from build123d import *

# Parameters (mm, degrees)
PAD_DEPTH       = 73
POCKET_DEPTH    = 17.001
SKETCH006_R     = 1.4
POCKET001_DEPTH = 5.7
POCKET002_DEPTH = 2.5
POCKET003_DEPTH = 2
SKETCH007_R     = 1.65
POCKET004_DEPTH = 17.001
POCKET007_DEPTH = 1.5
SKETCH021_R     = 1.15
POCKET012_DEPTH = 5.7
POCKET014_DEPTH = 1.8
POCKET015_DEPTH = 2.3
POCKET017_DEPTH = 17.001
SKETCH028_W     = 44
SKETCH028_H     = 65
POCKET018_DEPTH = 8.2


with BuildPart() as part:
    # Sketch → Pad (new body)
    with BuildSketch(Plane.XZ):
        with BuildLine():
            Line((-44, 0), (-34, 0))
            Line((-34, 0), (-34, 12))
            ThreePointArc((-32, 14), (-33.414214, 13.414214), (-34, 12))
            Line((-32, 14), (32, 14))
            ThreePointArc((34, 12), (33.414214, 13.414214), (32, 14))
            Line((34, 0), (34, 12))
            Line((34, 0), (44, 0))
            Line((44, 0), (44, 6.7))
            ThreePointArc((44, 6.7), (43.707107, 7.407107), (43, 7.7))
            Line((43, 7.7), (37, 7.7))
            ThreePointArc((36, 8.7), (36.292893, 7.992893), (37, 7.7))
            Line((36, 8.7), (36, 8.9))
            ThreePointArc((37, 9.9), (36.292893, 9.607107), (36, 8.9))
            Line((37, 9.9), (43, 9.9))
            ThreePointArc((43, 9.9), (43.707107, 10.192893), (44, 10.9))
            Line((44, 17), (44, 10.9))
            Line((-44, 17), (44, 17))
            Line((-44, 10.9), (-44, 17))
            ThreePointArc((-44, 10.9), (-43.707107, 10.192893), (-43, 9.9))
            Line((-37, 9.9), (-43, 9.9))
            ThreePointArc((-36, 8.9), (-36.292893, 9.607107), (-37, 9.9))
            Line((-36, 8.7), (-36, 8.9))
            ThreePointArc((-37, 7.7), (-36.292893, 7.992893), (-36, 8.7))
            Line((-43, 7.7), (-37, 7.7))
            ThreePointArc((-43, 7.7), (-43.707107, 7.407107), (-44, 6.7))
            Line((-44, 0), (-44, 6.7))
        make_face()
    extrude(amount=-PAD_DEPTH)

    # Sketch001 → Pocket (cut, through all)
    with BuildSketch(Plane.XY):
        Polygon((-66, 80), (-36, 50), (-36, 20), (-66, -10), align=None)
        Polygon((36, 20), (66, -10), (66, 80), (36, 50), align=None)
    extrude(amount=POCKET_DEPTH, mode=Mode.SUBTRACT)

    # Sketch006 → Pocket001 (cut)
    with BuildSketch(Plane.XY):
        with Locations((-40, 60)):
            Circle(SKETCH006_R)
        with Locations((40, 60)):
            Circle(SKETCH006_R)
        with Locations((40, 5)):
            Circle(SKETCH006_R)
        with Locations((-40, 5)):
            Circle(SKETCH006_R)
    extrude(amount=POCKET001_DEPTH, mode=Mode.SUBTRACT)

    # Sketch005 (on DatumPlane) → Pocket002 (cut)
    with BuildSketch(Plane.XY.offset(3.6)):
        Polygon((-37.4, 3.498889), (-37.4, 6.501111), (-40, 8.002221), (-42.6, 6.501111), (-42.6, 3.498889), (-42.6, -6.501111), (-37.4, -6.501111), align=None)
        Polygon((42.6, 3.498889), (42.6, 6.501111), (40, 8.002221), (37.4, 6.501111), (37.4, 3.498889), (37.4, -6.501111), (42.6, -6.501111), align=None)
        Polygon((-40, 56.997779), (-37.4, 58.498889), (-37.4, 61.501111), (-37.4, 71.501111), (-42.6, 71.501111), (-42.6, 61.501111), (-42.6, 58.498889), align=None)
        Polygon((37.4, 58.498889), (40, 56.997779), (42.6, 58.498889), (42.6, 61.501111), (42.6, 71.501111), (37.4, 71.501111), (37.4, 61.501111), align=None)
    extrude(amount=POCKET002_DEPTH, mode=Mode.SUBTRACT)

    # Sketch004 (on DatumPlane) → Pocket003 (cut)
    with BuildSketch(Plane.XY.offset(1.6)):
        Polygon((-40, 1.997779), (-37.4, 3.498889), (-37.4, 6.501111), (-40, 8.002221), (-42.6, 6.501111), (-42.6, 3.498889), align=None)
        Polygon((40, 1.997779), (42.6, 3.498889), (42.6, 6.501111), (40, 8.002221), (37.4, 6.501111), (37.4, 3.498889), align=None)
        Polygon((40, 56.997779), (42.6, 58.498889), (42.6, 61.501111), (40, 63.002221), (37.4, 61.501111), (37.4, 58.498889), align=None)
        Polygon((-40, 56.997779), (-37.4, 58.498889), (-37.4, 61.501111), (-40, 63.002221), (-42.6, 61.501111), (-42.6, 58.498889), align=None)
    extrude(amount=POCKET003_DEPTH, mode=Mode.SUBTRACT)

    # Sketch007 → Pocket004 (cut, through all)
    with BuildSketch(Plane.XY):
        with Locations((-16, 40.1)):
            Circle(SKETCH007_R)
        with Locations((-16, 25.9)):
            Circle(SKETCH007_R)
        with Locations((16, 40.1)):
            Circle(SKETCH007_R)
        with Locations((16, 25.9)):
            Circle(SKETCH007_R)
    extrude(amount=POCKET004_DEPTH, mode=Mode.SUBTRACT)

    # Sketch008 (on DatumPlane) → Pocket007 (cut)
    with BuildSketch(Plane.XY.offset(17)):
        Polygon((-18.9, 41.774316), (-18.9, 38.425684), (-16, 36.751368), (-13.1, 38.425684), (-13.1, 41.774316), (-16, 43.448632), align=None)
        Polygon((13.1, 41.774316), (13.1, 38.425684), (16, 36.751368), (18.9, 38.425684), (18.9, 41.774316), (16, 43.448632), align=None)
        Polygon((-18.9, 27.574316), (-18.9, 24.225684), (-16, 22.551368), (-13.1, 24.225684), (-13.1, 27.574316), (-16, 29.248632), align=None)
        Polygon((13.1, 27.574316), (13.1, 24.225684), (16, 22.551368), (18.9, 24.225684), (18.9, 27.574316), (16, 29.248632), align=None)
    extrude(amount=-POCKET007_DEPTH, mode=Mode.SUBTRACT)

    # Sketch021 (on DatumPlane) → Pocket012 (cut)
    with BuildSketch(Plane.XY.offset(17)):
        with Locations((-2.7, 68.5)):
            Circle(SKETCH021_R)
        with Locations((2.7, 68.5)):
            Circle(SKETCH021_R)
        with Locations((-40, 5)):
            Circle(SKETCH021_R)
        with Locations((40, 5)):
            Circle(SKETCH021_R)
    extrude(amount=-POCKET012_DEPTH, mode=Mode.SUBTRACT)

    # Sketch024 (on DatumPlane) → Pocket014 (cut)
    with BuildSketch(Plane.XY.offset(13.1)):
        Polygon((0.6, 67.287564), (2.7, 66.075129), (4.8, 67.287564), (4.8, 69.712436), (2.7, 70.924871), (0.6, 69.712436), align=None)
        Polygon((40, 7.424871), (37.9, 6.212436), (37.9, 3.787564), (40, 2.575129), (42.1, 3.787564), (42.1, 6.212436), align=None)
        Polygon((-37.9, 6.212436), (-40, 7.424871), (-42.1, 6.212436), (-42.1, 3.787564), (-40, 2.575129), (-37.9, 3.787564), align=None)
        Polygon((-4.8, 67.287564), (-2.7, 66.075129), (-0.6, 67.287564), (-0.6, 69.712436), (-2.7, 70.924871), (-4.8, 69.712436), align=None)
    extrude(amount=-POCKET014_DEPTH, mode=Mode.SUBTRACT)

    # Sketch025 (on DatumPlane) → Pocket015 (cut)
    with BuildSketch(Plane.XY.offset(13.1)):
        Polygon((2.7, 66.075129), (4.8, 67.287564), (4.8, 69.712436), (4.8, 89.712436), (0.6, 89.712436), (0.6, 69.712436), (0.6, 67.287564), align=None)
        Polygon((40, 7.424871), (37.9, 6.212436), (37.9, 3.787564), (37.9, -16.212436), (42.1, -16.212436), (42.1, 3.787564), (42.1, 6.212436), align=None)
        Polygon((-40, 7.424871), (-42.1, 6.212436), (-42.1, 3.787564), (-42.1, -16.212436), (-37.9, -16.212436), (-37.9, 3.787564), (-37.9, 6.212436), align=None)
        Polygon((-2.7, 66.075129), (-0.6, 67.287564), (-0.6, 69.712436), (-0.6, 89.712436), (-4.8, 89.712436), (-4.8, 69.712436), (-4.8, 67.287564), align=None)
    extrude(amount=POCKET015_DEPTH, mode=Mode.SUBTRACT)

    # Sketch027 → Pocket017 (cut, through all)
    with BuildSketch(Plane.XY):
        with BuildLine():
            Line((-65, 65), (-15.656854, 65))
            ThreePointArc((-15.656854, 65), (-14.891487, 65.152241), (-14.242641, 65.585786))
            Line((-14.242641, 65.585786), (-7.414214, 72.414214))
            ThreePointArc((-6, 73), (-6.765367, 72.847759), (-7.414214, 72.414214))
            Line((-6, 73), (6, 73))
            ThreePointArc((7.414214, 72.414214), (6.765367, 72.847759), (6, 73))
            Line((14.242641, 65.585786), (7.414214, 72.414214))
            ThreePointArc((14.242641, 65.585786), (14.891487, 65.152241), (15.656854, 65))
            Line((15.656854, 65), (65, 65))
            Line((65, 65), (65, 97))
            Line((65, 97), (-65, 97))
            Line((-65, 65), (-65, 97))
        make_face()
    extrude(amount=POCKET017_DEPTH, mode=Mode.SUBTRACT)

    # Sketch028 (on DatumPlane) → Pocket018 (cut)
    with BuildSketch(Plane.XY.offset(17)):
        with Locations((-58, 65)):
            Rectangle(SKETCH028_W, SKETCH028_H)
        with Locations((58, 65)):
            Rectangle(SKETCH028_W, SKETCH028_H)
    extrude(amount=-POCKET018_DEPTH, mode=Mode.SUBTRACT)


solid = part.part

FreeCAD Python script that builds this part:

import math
import FreeCAD as App
import Part
import Sketcher

V = App.Vector
Q = App.Units.Quantity


def add_polygon(sketch, points):
    """Adds a closed chain of lines whose ends are joined by coincident constraints."""
    first, n = sketch.GeometryCount, len(points)
    for a, b in zip(points, points[1:] + points[:1]):
        sketch.addGeometry(Part.LineSegment(App.Vector(*a, 0), App.Vector(*b, 0)), False)
    for i in range(n):
        sketch.addConstraint(Sketcher.Constraint("Coincident", first + i, 2, first + (i + 1) % n, 1))

doc = App.newDocument("Part")
params = doc.addObject("Spreadsheet::Sheet", "Params")
for row, (alias, value) in enumerate([
    ("sketch1_radius", "1.999999 mm"),
    ("sketch1_radius2", "0.999999 mm"),
    ("sketch1_width", "10 mm"),
    ("sketch1_width2", "64 mm"),
    ("sketch1_width3", "6 mm"),
    ("pad1_length", "73 mm"),
    ("sketch2_height", "90 mm"),
    ("sketch2_height2", "30 mm"),
    ("sketch3_diameter", "2.8 mm"),
    ("pocket2_length", "5.7 mm"),
    ("sketch4_width", "5.2 mm"),
    ("pocket3_length", "2.5 mm"),
    ("pocket4_length", "2 mm"),
    ("sketch6_diameter", "3.3 mm"),
    ("pocket6_length", "1.5 mm"),
    ("sketch8_diameter", "2.3 mm"),
    ("pocket7_length", "5.7 mm"),
    ("pocket8_length", "1.8 mm"),
    ("sketch10_width", "4.2 mm"),
    ("pocket9_length", "2.3 mm"),
    ("sketch11_radius", "2 mm"),
    ("sketch11_width", "12 mm"),
    ("sketch11_width2", "130 mm"),
    ("sketch11_height", "32 mm"),
    ("sketch12_width", "44 mm"),
    ("sketch12_height", "65 mm"),
    ("pocket11_length", "8.2 mm"),
], start=1):
    params.set(f"A{row}", alias)
    params.set(f"B{row}", "=" + value)
    params.setAlias(f"B{row}", alias)

body = doc.addObject("PartDesign::Body", "Body")

# Sketch on XZ plane
sketch1 = body.newObject("Sketcher::SketchObject", "Sketch")
sketch1.AttachmentSupport = (doc.getObject("XZ_Plane"), [""])
sketch1.MapMode = "FlatFace"
sketch1.addGeometry([
    Part.LineSegment(V(-44, 0, 0), V(-34, 0, 0)),  # 0
    Part.LineSegment(V(-34, 0, 0), V(-34, 12, 0)),  # 1
    Part.ArcOfCircle(Part.Circle(V(-32, 12, 0), V(0, 0, 1), 2), math.radians(90), math.radians(180)),  # 2
    Part.LineSegment(V(-32, 14, 0), V(32, 14, 0)),  # 3
    Part.ArcOfCircle(Part.Circle(V(32, 12, 0), V(0, 0, 1), 2), math.radians(0), math.radians(90)),  # 4
    Part.LineSegment(V(34, 12, 0), V(34, 0, 0)),  # 5
    Part.LineSegment(V(34, 0, 0), V(44, 0, 0)),  # 6
    Part.LineSegment(V(44, 0, 0), V(44, 6.7, 0)),  # 7
    Part.ArcOfCircle(Part.Circle(V(43, 6.7, 0), V(0, 0, 1), 1), math.radians(0), math.radians(90)),  # 8
    Part.LineSegment(V(43, 7.7, 0), V(37, 7.7, 0)),  # 9
    Part.ArcOfCircle(Part.Circle(V(37, 8.7, 0), V(0, 0, 1), 1), math.radians(180), math.radians(270)),  # 10
    Part.LineSegment(V(36, 8.7, 0), V(36, 8.9, 0)),  # 11
    Part.ArcOfCircle(Part.Circle(V(37, 8.9, 0), V(0, 0, 1), 1), math.radians(90), math.radians(180)),  # 12
    Part.LineSegment(V(37, 9.9, 0), V(43, 9.9, 0)),  # 13
    Part.ArcOfCircle(Part.Circle(V(43, 10.9, 0), V(0, 0, 1), 1), math.radians(-90), math.radians(0)),  # 14
    Part.LineSegment(V(44, 10.9, 0), V(44, 17, 0)),  # 15
    Part.LineSegment(V(44, 17, 0), V(-44, 17, 0)),  # 16
    Part.LineSegment(V(-44, 17, 0), V(-44, 10.9, 0)),  # 17
    Part.ArcOfCircle(Part.Circle(V(-43, 10.9, 0), V(0, 0, 1), 1), math.radians(180), math.radians(270)),  # 18
    Part.LineSegment(V(-43, 9.9, 0), V(-37, 9.9, 0)),  # 19
    Part.ArcOfCircle(Part.Circle(V(-37, 8.9, 0), V(0, 0, 1), 1), math.radians(0), math.radians(90)),  # 20
    Part.LineSegment(V(-36, 8.9, 0), V(-36, 8.7, 0)),  # 21
    Part.ArcOfCircle(Part.Circle(V(-37, 8.7, 0), V(0, 0, 1), 1), math.radians(-90), math.radians(0)),  # 22
    Part.LineSegment(V(-37, 7.7, 0), V(-43, 7.7, 0)),  # 23
    Part.ArcOfCircle(Part.Circle(V(-43, 6.7, 0), V(0, 0, 1), 1), math.radians(90), math.radians(180)),  # 24
    Part.LineSegment(V(-44, 6.7, 0), V(-44, 0, 0)),  # 25
], False)
sketch1.addConstraint([
    Sketcher.Constraint("Coincident", 0, 2, 1, 1),
    Sketcher.Constraint("Tangent", 1, 2, 2, 2),
    Sketcher.Constraint("Tangent", 2, 1, 3, 1),
    Sketcher.Constraint("Tangent", 3, 2, 4, 2),
    Sketcher.Constraint("Tangent", 4, 1, 5, 1),
    Sketcher.Constraint("Coincident", 5, 2, 6, 1),
    Sketcher.Constraint("Coincident", 6, 2, 7, 1),
    Sketcher.Constraint("Tangent", 7, 2, 8, 1),
    Sketcher.Constraint("Tangent", 8, 2, 9, 1),
    Sketcher.Constraint("Tangent", 9, 2, 10, 2),
    Sketcher.Constraint("Tangent", 10, 1, 11, 1),
    Sketcher.Constraint("Tangent", 11, 2, 12, 2),
    Sketcher.Constraint("Tangent", 12, 1, 13, 1),
    Sketcher.Constraint("Tangent", 13, 2, 14, 1),
    Sketcher.Constraint("Tangent", 14, 2, 15, 1),
    Sketcher.Constraint("Coincident", 15, 2, 16, 1),
    Sketcher.Constraint("Coincident", 16, 2, 17, 1),
    Sketcher.Constraint("Tangent", 17, 2, 18, 1),
    Sketcher.Constraint("Tangent", 18, 2, 19, 1),
    Sketcher.Constraint("Tangent", 19, 2, 20, 2),
    Sketcher.Constraint("Tangent", 20, 1, 21, 1),
    Sketcher.Constraint("Tangent", 21, 2, 22, 2),
    Sketcher.Constraint("Tangent", 22, 1, 23, 1),
    Sketcher.Constraint("Tangent", 23, 2, 24, 1),
    Sketcher.Constraint("Tangent", 24, 2, 25, 1),
    Sketcher.Constraint("Coincident", 25, 2, 0, 1),
    Sketcher.Constraint("Horizontal", 0),
    Sketcher.Constraint("Vertical", 1),
    Sketcher.Constraint("Horizontal", 3),
    Sketcher.Constraint("Vertical", 5),
    Sketcher.Constraint("Horizontal", 6),
    Sketcher.Constraint("Vertical", 7),
    Sketcher.Constraint("Horizontal", 9),
    Sketcher.Constraint("Vertical", 11),
    Sketcher.Constraint("Horizontal", 13),
    Sketcher.Constraint("Vertical", 15),
    Sketcher.Constraint("Horizontal", 16),
    Sketcher.Constraint("Vertical", 17),
    Sketcher.Constraint("Horizontal", 19),
    Sketcher.Constraint("Vertical", 21),
    Sketcher.Constraint("Horizontal", 23),
    Sketcher.Constraint("Vertical", 25),
    Sketcher.Constraint("Equal", 2, 4),
    Sketcher.Constraint("Equal", 8, 10),
    Sketcher.Constraint("Equal", 10, 12),
    Sketcher.Constraint("Equal", 12, 14),
    Sketcher.Constraint("Equal", 14, 18),
    Sketcher.Constraint("Equal", 18, 20),
    Sketcher.Constraint("Equal", 20, 22),
    Sketcher.Constraint("Equal", 22, 24),
    Sketcher.Constraint("Symmetric", 0, 2, 5, 2, -1, 1),
    Sketcher.Constraint("Symmetric", 14, 3, 18, 3, -2),
    Sketcher.Constraint("Symmetric", 10, 3, 22, 3, -2),
    Sketcher.Constraint("Symmetric", 6, 2, 25, 2, -2),
    Sketcher.Constraint("Vertical", 8, 3, 14, 3),
    Sketcher.Constraint("Radius", 2, Q("1.999999 mm")),
    Sketcher.Constraint("Radius", 8, Q("0.999999 mm")),
    Sketcher.Constraint("DistanceX", 0, 1, 0, 2, Q("10 mm")),
    Sketcher.Constraint("DistanceX", 3, 1, 3, 2, Q("64 mm")),
    Sketcher.Constraint("DistanceX", 9, 2, 9, 1, Q("6 mm")),
    Sketcher.Constraint("DistanceY", 1, 1, 1, 2, Q("12 mm")),
    Sketcher.Constraint("DistanceY", 7, 1, 7, 2, Q("6.7 mm")),
    Sketcher.Constraint("DistanceY", 11, 1, 11, 2, Q("0.2 mm")),
    Sketcher.Constraint("DistanceY", 15, 1, 15, 2, Q("6.1 mm")),
])
sketch1.setExpression("Constraints[55]", "Params.sketch1_radius")
sketch1.setExpression("Constraints[56]", "Params.sketch1_radius2")
sketch1.setExpression("Constraints[57]", "Params.sketch1_width")
sketch1.setExpression("Constraints[58]", "Params.sketch1_width2")
sketch1.setExpression("Constraints[59]", "Params.sketch1_width3")
pad1 = body.newObject("PartDesign::Pad", "Pad")
pad1.Profile = sketch1
pad1.setExpression("Length", "Params.pad1_length")
pad1.Reversed = True

# Sketch on XY plane
sketch2 = body.newObject("Sketcher::SketchObject", "Sketch001")
sketch2.AttachmentSupport = (doc.getObject("XY_Plane"), [""])
sketch2.MapMode = "FlatFace"
add_polygon(sketch2, [(-36, 50), (-66, 80), (-66, -10), (-36, 20)])  # lines 0-3
add_polygon(sketch2, [(36, 20), (66, -10), (66, 80), (36, 50)])  # lines 4-7
sketch2.addConstraint([
    Sketcher.Constraint("Vertical", 1),
    Sketcher.Constraint("Vertical", 3),
    Sketcher.Constraint("Vertical", 5),
    Sketcher.Constraint("Vertical", 7),
    Sketcher.Constraint("Symmetric", 1, 2, 4, 2, -2),
    Sketcher.Constraint("Symmetric", 3, 2, 6, 2, -2),
    Sketcher.Constraint("Perpendicular", 0, 2),
    Sketcher.Constraint("Perpendicular", 2, 4),
    Sketcher.Constraint("Perpendicular", 4, 6),
    Sketcher.Constraint("Horizontal", 0, 2, 5, 2),
    Sketcher.Constraint("DistanceY", 1, 2, 1, 1, Q("90 mm")),
    Sketcher.Constraint("DistanceY", 3, 1, 3, 2, Q("30 mm")),
    Sketcher.Constraint("DistanceX", 0, 2, -1, 1, Q("66 mm")),
    Sketcher.Constraint("DistanceY", -1, 1, 0, 2, Q("80 mm")),
])
sketch2.setExpression("Constraints[18]", "Params.sketch2_height")
sketch2.setExpression("Constraints[19]", "Params.sketch2_height2")
pocket1 = body.newObject("PartDesign::Pocket", "Pocket")
pocket1.Profile = sketch2
pocket1.Type = "ThroughAll"
pocket1.Reversed = True

# Sketch on XY plane
sketch3 = body.newObject("Sketcher::SketchObject", "Sketch002")
sketch3.AttachmentSupport = (doc.getObject("XY_Plane"), [""])
sketch3.MapMode = "FlatFace"
sketch3.addGeometry([
    Part.Circle(V(-40, 60, 0), V(0, 0, 1), 1.4),
    Part.Circle(V(40, 60, 0), V(0, 0, 1), 1.4),
    Part.Circle(V(40, 5, 0), V(0, 0, 1), 1.4),
    Part.Circle(V(-40, 5, 0), V(0, 0, 1), 1.4),
], False)
sketch3.addConstraint([
    Sketcher.Constraint("Equal", 0, 1),
    Sketcher.Constraint("Equal", 1, 2),
    Sketcher.Constraint("Equal", 2, 3),
    Sketcher.Constraint("Symmetric", 0, 3, 1, 3, -2),
    Sketcher.Constraint("Symmetric", 2, 3, 3, 3, -2),
    Sketcher.Constraint("Vertical", 1, 3, 2, 3),
    Sketcher.Constraint("Diameter", 0, Q("2.8 mm")),
    Sketcher.Constraint("DistanceX", 0, 3, -1, 1, Q("40 mm")),
    Sketcher.Constraint("DistanceY", -1, 1, 0, 3, Q("60 mm")),
    Sketcher.Constraint("DistanceY", -1, 1, 2, 3, Q("5 mm")),
])
sketch3.setExpression("Constraints[6]", "Params.sketch3_diameter")
pocket2 = body.newObject("PartDesign::Pocket", "Pocket001")
pocket2.Profile = sketch3
pocket2.setExpression("Length", "Params.pocket2_length")
pocket2.Reversed = True

# Sketch on XY plane
sketch4 = body.newObject("Sketcher::SketchObject", "Sketch003")
sketch4.AttachmentSupport = (doc.getObject("XY_Plane"), [""])
sketch4.MapMode = "FlatFace"
sketch4.AttachmentOffset = App.Placement(V(0, 0, 3.6), App.Rotation())
add_polygon(sketch4, [(-37.4, 6.5), (-40, 8), (-42.6, 6.5), (-42.6, -6.5), (-37.4, -6.5)])  # lines 0-4
add_polygon(sketch4, [(42.6, 6.5), (40, 8), (37.4, 6.5), (37.4, -6.5), (42.6, -6.5)])  # lines 5-9
add_polygon(sketch4, [(-40, 57), (-37.4, 58.5), (-37.4, 71.5), (-42.6, 71.5), (-42.6, 58.5)])  # lines 10-14
add_polygon(sketch4, [(37.4, 58.5), (40, 57), (42.6, 58.5), (42.6, 71.5), (37.4, 71.5)])  # lines 15-19
sketch4.addConstraint([
    Sketcher.Constraint("Vertical", 2),
    Sketcher.Constraint("Horizontal", 3),
    Sketcher.Constraint("Vertical", 4),
    Sketcher.Constraint("Vertical", 7),
    Sketcher.Constraint("Horizontal", 8),
    Sketcher.Constraint("Vertical", 9),
    Sketcher.Constraint("Vertical", 11),
    Sketcher.Constraint("Horizontal", 12),
    Sketcher.Constraint("Vertical", 13),
    Sketcher.Constraint("Vertical", 17),
    Sketcher.Constraint("Horizontal", 18),
    Sketcher.Constraint("Vertical", 19),
    Sketcher.Constraint("Symmetric", 3, 2, 6, 2, -1, 1),
    Sketcher.Constraint("Symmetric", 1, 2, 8, 2, -1, 1),
    Sketcher.Constraint("Symmetric", 0, 2, 5, 2, -2),
    Sketcher.Constraint("Symmetric", 14, 2, 15, 2, -2),
    Sketcher.Constraint("Symmetric", 13, 2, 16, 2, -2),
    Sketcher.Constraint("Symmetric", 11, 2, 18, 2, -2),
    Sketcher.Constraint("Parallel", 0, 5),
    Sketcher.Constraint("Parallel", 1, 6),
    Sketcher.Constraint("Parallel", 6, 10),
    Sketcher.Constraint("Parallel", 5, 14),
    Sketcher.Constraint("Parallel", 14, 15),
    Sketcher.Constraint("Parallel", 10, 16),
    Sketcher.Constraint("Horizontal", 1, 2, 4, 2),
    Sketcher.Constraint("Horizontal", 10, 2, 13, 2),
    Sketcher.Constraint("Vertical", 4, 2, 10, 2),
    Sketcher.Constraint("Vertical", 2, 2, 12, 2),
    Sketcher.Constraint("Equal", 9, 11),
    Sketcher.Constraint("Angle", 0, Q("150.000012 deg")),
    Sketcher.Constraint("DistanceX", 3, 1, 3, 2, Q("5.2 mm")),
    Sketcher.Constraint("DistanceX", 0, 2, -1, 1, Q("40 mm")),
    Sketcher.Constraint("DistanceY", 3, 2, 10, 2, Q("65 mm")),
    Sketcher.Constraint("DistanceY", 11, 1, 11, 2, Q("13.002222 mm")),
])
sketch4.setExpression("Constraints[50]", "Params.sketch4_width")
pocket3 = body.newObject("PartDesign::Pocket", "Pocket002")
pocket3.Profile = sketch4
pocket3.setExpression("Length", "Params.pocket3_length")
pocket3.Reversed = True

# Sketch on XY plane
sketch5 = body.newObject("Sketcher::SketchObject", "Sketch004")
sketch5.AttachmentSupport = (doc.getObject("XY_Plane"), [""])
sketch5.MapMode = "FlatFace"
sketch5.AttachmentOffset = App.Placement(V(0, 0, 1.6), App.Rotation())
add_polygon(sketch5, [(-40, 2), (-37.4, 3.5), (-37.4, 6.5), (-40, 8), (-42.6, 6.5), (-42.6, 3.5)])  # lines 0-5
add_polygon(sketch5, [(40, 2), (42.6, 3.5), (42.6, 6.5), (40, 8), (37.4, 6.5), (37.4, 3.5)])  # lines 6-11
add_polygon(sketch5, [(40, 57), (42.6, 58.5), (42.6, 61.5), (40, 63), (37.4, 61.5), (37.4, 58.5)])  # lines 12-17
add_polygon(sketch5, [(-40, 57), (-37.4, 58.5), (-37.4, 61.5), (-40, 63), (-42.6, 61.5), (-42.6, 58.5)])  # lines 18-23
sketch5.addConstraint([
    Sketcher.Constraint("Vertical", 1),
    Sketcher.Constraint("Vertical", 4),
    Sketcher.Constraint("Vertical", 7),
    Sketcher.Constraint("Vertical", 10),
    Sketcher.Constraint("Vertical", 13),
    Sketcher.Constraint("Vertical", 16),
    Sketcher.Constraint("Vertical", 19),
    Sketcher.Constraint("Vertical", 22),
    Sketcher.Constraint("Symmetric", 4, 2, 6, 2, -2),
    Sketcher.Constraint("Symmetric", 2, 2, 8, 2, -2),
    Sketcher.Constraint("Symmetric", 1, 2, 9, 2, -2),
    Sketcher.Constraint("Symmetric", 5, 2, 11, 2, -2),
    Sketcher.Constraint("Symmetric", 16, 2, 18, 2, -2),
    Sketcher.Constraint("Symmetric", 14, 2, 20, 2, -2),
    Sketcher.Constraint("Symmetric", 13, 2, 21, 2, -2),
    Sketcher.Constraint("Symmetric", 17, 2, 23, 2, -2),
    Sketcher.Constraint("Parallel", 0, 3),
    Sketcher.Constraint("Parallel", 2, 5),
    Sketcher.Constraint("Parallel", 3, 6),
    Sketcher.Constraint("Parallel", 5, 8),
    Sketcher.Constraint("Parallel", 8, 11),
    Sketcher.Constraint("Parallel", 9, 12),
    Sketcher.Constraint("Parallel", 11, 14),
    Sketcher.Constraint("Parallel", 12, 15),
    Sketcher.Constraint("Parallel", 14, 17),
    Sketcher.Constraint("Parallel", 17, 20),
    Sketcher.Constraint("Parallel", 20, 23),
    Sketcher.Constraint("Horizontal", 1, 2, 3, 2),
    Sketcher.Constraint("Horizontal", 0, 2, 4, 2),
    Sketcher.Constraint("Horizontal", 13, 2, 15, 2),
    Sketcher.Constraint("Horizontal", 12, 2, 16, 2),
    Sketcher.Constraint("Vertical", 7, 2, 12, 2),
    Sketcher.Constraint("Vertical", 11, 2, 14, 2),
    Sketcher.Constraint("Equal", 10, 13),
    Sketcher.Constraint("Angle", 0, Q("29.999988 deg")),
    Sketcher.Constraint("DistanceX", 2, 2, -1, 1, Q("40 mm")),
    Sketcher.Constraint("DistanceY", 6, 2, 12, 2, Q("55 mm")),
    Sketcher.Constraint("DistanceX", 0, 2, -1, 1, Q("37.4 mm")),
    Sketcher.Constraint("DistanceY", 1, 1, 1, 2, Q("3.002222 mm")),
    Sketcher.Constraint("DistanceY", -1, 1, 0, 2, Q("3.498889 mm")),
])
pocket4 = body.newObject("PartDesign::Pocket", "Pocket003")
pocket4.Profile = sketch5
pocket4.setExpression("Length", "Params.pocket4_length")
pocket4.Reversed = True

# Sketch on XY plane
sketch6 = body.newObject("Sketcher::SketchObject", "Sketch005")
sketch6.AttachmentSupport = (doc.getObject("XY_Plane"), [""])
sketch6.MapMode = "FlatFace"
sketch6.addGeometry([
    Part.Circle(V(-16, 40.1, 0), V(0, 0, 1), 1.6),
    Part.Circle(V(-16, 25.9, 0), V(0, 0, 1), 1.6),
    Part.Circle(V(16, 40.1, 0), V(0, 0, 1), 1.6),
    Part.Circle(V(16, 25.9, 0), V(0, 0, 1), 1.6),
], False)
sketch6.addConstraint([
    Sketcher.Constraint("Equal", 0, 1),
    Sketcher.Constraint("Equal", 1, 2),
    Sketcher.Constraint("Equal", 2, 3),
    Sketcher.Constraint("Symmetric", 0, 3, 2, 3, -2),
    Sketcher.Constraint("Symmetric", 1, 3, 3, 3, -2),
    Sketcher.Constraint("Vertical", 0, 3, 1, 3),
    Sketcher.Constraint("Diameter", 0, Q("3.3 mm")),
    Sketcher.Constraint("DistanceX", 0, 3, -1, 1, Q("16 mm")),
    Sketcher.Constraint("DistanceY", -1, 1, 0, 3, Q("40.1 mm")),
    Sketcher.Constraint("DistanceY", -1, 1, 1, 3, Q("25.9 mm")),
])
sketch6.setExpression("Constraints[6]", "Params.sketch6_diameter")
pocket5 = body.newObject("PartDesign::Pocket", "Pocket004")
pocket5.Profile = sketch6
pocket5.Type = "ThroughAll"
pocket5.Reversed = True

# Sketch on XY plane
sketch7 = body.newObject("Sketcher::SketchObject", "Sketch006")
sketch7.AttachmentSupport = (doc.getObject("XY_Plane"), [""])
sketch7.MapMode = "FlatFace"
sketch7.AttachmentOffset = App.Placement(V(0, 0, 17), App.Rotation())
add_polygon(sketch7, [(-18.9, 41.8), (-18.9, 38.4), (-16, 36.8), (-13.1, 38.4), (-13.1, 41.8), (-16, 43.4)])  # lines 0-5
add_polygon(sketch7, [(13.1, 41.8), (13.1, 38.4), (16, 36.8), (18.9, 38.4), (18.9, 41.8), (16, 43.4)])  # lines 6-11
add_polygon(sketch7, [(-18.9, 27.6), (-18.9, 24.2), (-16, 22.6), (-13.1, 24.2), (-13.1, 27.6), (-16, 29.2)])  # lines 12-17
add_polygon(sketch7, [(13.1, 27.6), (13.1, 24.2), (16, 22.6), (18.9, 24.2), (18.9, 27.6), (16, 29.2)])  # lines 18-23
sketch7.addConstraint([
    Sketcher.Constraint("Vertical", 0),
    Sketcher.Constraint("Vertical", 3),
    Sketcher.Constraint("Vertical", 6),
    Sketcher.Constraint("Vertical", 9),
    Sketcher.Constraint("Vertical", 12),
    Sketcher.Constraint("Vertical", 15),
    Sketcher.Constraint("Vertical", 18),
    Sketcher.Constraint("Vertical", 21),
    Sketcher.Constraint("Symmetric", 2, 2, 6, 2, -2),
    Sketcher.Constraint("Symmetric", 1, 2, 7, 2, -2),
    Sketcher.Constraint("Symmetric", 0, 2, 8, 2, -2),
    Sketcher.Constraint("Symmetric", 4, 2, 10, 2, -2),
    Sketcher.Constraint("Symmetric", 14, 2, 18, 2, -2),
    Sketcher.Constraint("Symmetric", 13, 2, 19, 2, -2),
    Sketcher.Constraint("Symmetric", 12, 2, 20, 2, -2),
    Sketcher.Constraint("Symmetric", 16, 2, 22, 2, -2),
    Sketcher.Constraint("Parallel", 1, 4),
    Sketcher.Constraint("Parallel", 2, 5),
    Sketcher.Constraint("Parallel", 4, 7),
    Sketcher.Constraint("Parallel", 7, 10),
    Sketcher.Constraint("Parallel", 8, 11),
    Sketcher.Constraint("Parallel", 10, 13),
    Sketcher.Constraint("Parallel", 11, 14),
    Sketcher.Constraint("Parallel", 13, 16),
    Sketcher.Constraint("Parallel", 14, 17),
    Sketcher.Constraint("Parallel", 19, 22),
    Sketcher.Constraint("Parallel", 20, 23),
    Sketcher.Constraint("Horizontal", 0, 2, 2, 2),
    Sketcher.Constraint("Horizontal", 3, 2, 5, 2),
    Sketcher.Constraint("Horizontal", 12, 2, 14, 2),
    Sketcher.Constraint("Horizontal", 15, 2, 17, 2),
    Sketcher.Constraint("Vertical", 5, 2, 12, 2),
    Sketcher.Constraint("Vertical", 4, 2, 13, 2),
    Sketcher.Constraint("Equal", 9, 12),
    Sketcher.Constraint("Angle", 1, Q("-30.000003 deg")),
    Sketcher.Constraint("DistanceX", 1, 2, -1, 1, Q("16 mm")),
    Sketcher.Constraint("DistanceX", 0, 2, -1, 1, Q("18.9 mm")),
    Sketcher.Constraint("DistanceY", 12, 2, 0, 2, Q("14.2 mm")),
    Sketcher.Constraint("DistanceY", 12, 2, 12, 1, Q("3.348632 mm")),
    Sketcher.Constraint("DistanceY", -1, 1, 13, 2, Q("22.551368 mm")),
])
pocket6 = body.newObject("PartDesign::Pocket", "Pocket005")
pocket6.Profile = sketch7
pocket6.setExpression("Length", "Params.pocket6_length")

# Sketch on XY plane
sketch8 = body.newObject("Sketcher::SketchObject", "Sketch007")
sketch8.AttachmentSupport = (doc.getObject("XY_Plane"), [""])
sketch8.MapMode = "FlatFace"
sketch8.AttachmentOffset = App.Placement(V(0, 0, 17), App.Rotation())
sketch8.addGeometry([
    Part.Circle(V(-2.7, 68.5, 0), V(0, 0, 1), 1.1),
    Part.Circle(V(2.7, 68.5, 0), V(0, 0, 1), 1.1),
    Part.Circle(V(-40, 5, 0), V(0, 0, 1), 1.1),
    Part.Circle(V(40, 5, 0), V(0, 0, 1), 1.1),
], False)
sketch8.addConstraint([
    Sketcher.Constraint("Equal", 0, 1),
    Sketcher.Constraint("Equal", 1, 2),
    Sketcher.Constraint("Equal", 2, 3),
    Sketcher.Constraint("Symmetric", 0, 3, 1, 3, -2),
    Sketcher.Constraint("Symmetric", 2, 3, 3, 3, -2),
    Sketcher.Constraint("Diameter", 0, Q("2.3 mm")),
    Sketcher.Constraint("DistanceX", 2, 3, -1, 1, Q("40 mm")),
    Sketcher.Constraint("DistanceY", -1, 1, 2, 3, Q("5 mm")),
    Sketcher.Constraint("DistanceX", 0, 3, -1, 1, Q("2.7 mm")),
    Sketcher.Constraint("DistanceY", -1, 1, 0, 3, Q("68.5 mm")),
])
sketch8.setExpression("Constraints[5]", "Params.sketch8_diameter")
pocket7 = body.newObject("PartDesign::Pocket", "Pocket006")
pocket7.Profile = sketch8
pocket7.setExpression("Length", "Params.pocket7_length")

# Sketch on XY plane
sketch9 = body.newObject("Sketcher::SketchObject", "Sketch008")
sketch9.AttachmentSupport = (doc.getObject("XY_Plane"), [""])
sketch9.MapMode = "FlatFace"
sketch9.AttachmentOffset = App.Placement(V(0, 0, 13.1), App.Rotation())
add_polygon(sketch9, [(0.6, 67.3), (2.7, 66.1), (4.8, 67.3), (4.8, 69.7), (2.7, 70.9), (0.6, 69.7)])  # lines 0-5
add_polygon(sketch9, [(40, 7.4), (37.9, 6.2), (37.9, 3.8), (40, 2.6), (42.1, 3.8), (42.1, 6.2)])  # lines 6-11
add_polygon(sketch9, [(-37.9, 6.2), (-40, 7.4), (-42.1, 6.2), (-42.1, 3.8), (-40, 2.6), (-37.9, 3.8)])  # lines 12-17
add_polygon(sketch9, [(-4.8, 67.3), (-2.7, 66.1), (-0.6, 67.3), (-0.6, 69.7), (-2.7, 70.9), (-4.8, 69.7)])  # lines 18-23
sketch9.addConstraint([
    Sketcher.Constraint("Vertical", 2),
    Sketcher.Constraint("Vertical", 5),
    Sketcher.Constraint("Vertical", 7),
    Sketcher.Constraint("Vertical", 10),
    Sketcher.Constraint("Vertical", 14),
    Sketcher.Constraint("Vertical", 17),
    Sketcher.Constraint("Vertical", 20),
    Sketcher.Constraint("Vertical", 23),
    Sketcher.Constraint("Symmetric", 11, 2, 12, 2, -2),
    Sketcher.Constraint("Symmetric", 10, 2, 13, 2, -2),
    Sketcher.Constraint("Symmetric", 8, 2, 15, 2, -2),
    Sketcher.Constraint("Symmetric", 7, 2, 16, 2, -2),
    Sketcher.Constraint("Symmetric", 0, 2, 18, 2, -2),
    Sketcher.Constraint("Symmetric", 5, 2, 19, 2, -2),
    Sketcher.Constraint("Symmetric", 3, 2, 21, 2, -2),
    Sketcher.Constraint("Symmetric", 2, 2, 22, 2, -2),
    Sketcher.Constraint("Parallel", 0, 3),
    Sketcher.Constraint("Parallel", 1, 4),
    Sketcher.Constraint("Parallel", 4, 6),
    Sketcher.Constraint("Parallel", 3, 8),
    Sketcher.Constraint("Parallel", 6, 9),
    Sketcher.Constraint("Parallel", 8, 11),
    Sketcher.Constraint("Parallel", 11, 12),
    Sketcher.Constraint("Parallel", 9, 13),
    Sketcher.Constraint("Parallel", 12, 15),
    Sketcher.Constraint("Parallel", 15, 18),
    Sketcher.Constraint("Parallel", 18, 21),
    Sketcher.Constraint("Horizontal", 2, 2, 4, 2),
    Sketcher.Constraint("Horizontal", 1, 2, 5, 2),
    Sketcher.Constraint("Horizontal", 7, 2, 9, 2),
    Sketcher.Constraint("Horizontal", 6, 2, 10, 2),
    Sketcher.Constraint("Equal", 5, 7),
    Sketcher.Constraint("Equal", 4, 6),
    Sketcher.Constraint("Angle", 0, Q("-29.999988 deg")),
    Sketcher.Constraint("DistanceX", -1, 1, 8, 2, Q("40 mm")),
    Sketcher.Constraint("DistanceX", -1, 1, 0, 2, Q("2.7 mm")),
    Sketcher.Constraint("DistanceX", -1, 1, 1, 2, Q("4.8 mm")),
    Sketcher.Constraint("DistanceY", 6, 2, 2, 2, Q("63.5 mm")),
    Sketcher.Constraint("DistanceY", 2, 1, 2, 2, Q("2.424872 mm")),
    Sketcher.Constraint("DistanceY", -1, 1, 0, 2, Q("66.075129 mm")),
])
pocket8 = body.newObject("PartDesign::Pocket", "Pocket007")
pocket8.Profile = sketch9
pocket8.setExpression("Length", "Params.pocket8_length")

# Sketch on XY plane
sketch10 = body.newObject("Sketcher::SketchObject", "Sketch009")
sketch10.AttachmentSupport = (doc.getObject("XY_Plane"), [""])
sketch10.MapMode = "FlatFace"
sketch10.AttachmentOffset = App.Placement(V(0, 0, 13.1), App.Rotation())
add_polygon(sketch10, [(2.7, 66.1), (4.8, 67.3), (4.8, 89.7), (0.6, 89.7), (0.6, 67.3)])  # lines 0-4
add_polygon(sketch10, [(40, 7.4), (37.9, 6.2), (37.9, -16.2), (42.1, -16.2), (42.1, 6.2)])  # lines 5-9
add_polygon(sketch10, [(-40, 7.4), (-42.1, 6.2), (-42.1, -16.2), (-37.9, -16.2), (-37.9, 6.2)])  # lines 10-14
add_polygon(sketch10, [(-2.7, 66.1), (-0.6, 67.3), (-0.6, 89.7), (-4.8, 89.7), (-4.8, 67.3)])  # lines 15-19
sketch10.addConstraint([
    Sketcher.Constraint("Vertical", 1),
    Sketcher.Constraint("Horizontal", 2),
    Sketcher.Constraint("Vertical", 3),
    Sketcher.Constraint("Vertical", 6),
    Sketcher.Constraint("Horizontal", 7),
    Sketcher.Constraint("Vertical", 8),
    Sketcher.Constraint("Vertical", 11),
    Sketcher.Constraint("Horizontal", 12),
    Sketcher.Constraint("Vertical", 13),
    Sketcher.Constraint("Vertical", 16),
    Sketcher.Constraint("Horizontal", 17),
    Sketcher.Constraint("Vertical", 18),
    Sketcher.Constraint("Symmetric", 8, 2, 10, 2, -2),
    Sketcher.Constraint("Symmetric", 6, 2, 12, 2, -2),
    Sketcher.Constraint("Symmetric", 9, 2, 14, 2, -2),
    Sketcher.Constraint("Symmetric", 3, 2, 15, 2, -2),
    Sketcher.Constraint("Symmetric", 1, 2, 17, 2, -2),
    Sketcher.Constraint("Symmetric", 4, 2, 19, 2, -2),
    Sketcher.Constraint("Parallel", 0, 5),
    Sketcher.Constraint("Parallel", 4, 9),
    Sketcher.Constraint("Parallel", 5, 10),
    Sketcher.Constraint("Parallel", 9, 14),
    Sketcher.Constraint("Parallel", 14, 19),
    Sketcher.Constraint("Horizontal", 0, 2, 3, 2),
    Sketcher.Constraint("Horizontal", 5, 2, 8, 2),
    Sketcher.Constraint("Equal", 2, 7),
    Sketcher.Constraint("Equal", 3, 6),
    Sketcher.Constraint("Angle", 0, Q("29.999988 deg")),
    Sketcher.Constraint("DistanceX", 2, 2, 2, 1, Q("4.2 mm")),
    Sketcher.Constraint("DistanceX", -1, 1, 9, 2, Q("40 mm")),
    Sketcher.Constraint("DistanceX", -1, 1, 0, 2, Q("4.8 mm")),
    Sketcher.Constraint("DistanceY", 5, 2, 1, 2, Q("83.5 mm")),
    Sketcher.Constraint("DistanceY", 1, 1, 1, 2, Q("22.424872 mm")),
    Sketcher.Constraint("DistanceY", -1, 1, 4, 2, Q("66.075129 mm")),
])
sketch10.setExpression("Constraints[48]", "Params.sketch10_width")
pocket9 = body.newObject("PartDesign::Pocket", "Pocket008")
pocket9.Profile = sketch10
pocket9.setExpression("Length", "Params.pocket9_length")
pocket9.Reversed = True

# Sketch on XY plane
sketch11 = body.newObject("Sketcher::SketchObject", "Sketch010")
sketch11.AttachmentSupport = (doc.getObject("XY_Plane"), [""])
sketch11.MapMode = "FlatFace"
sketch11.addGeometry([
    Part.LineSegment(V(-65, 65, 0), V(-15.7, 65, 0)),  # 0
    Part.ArcOfCircle(Part.Circle(V(-15.7, 67, 0), V(0, 0, 1), 2), math.radians(-90), math.radians(-45)),  # 1
    Part.LineSegment(V(-14.2, 65.6, 0), V(-7.4, 72.4, 0)),  # 2
    Part.ArcOfCircle(Part.Circle(V(-6, 71, 0), V(0, 0, 1), 2), math.radians(90), math.radians(135)),  # 3
    Part.LineSegment(V(-6, 73, 0), V(6, 73, 0)),  # 4
    Part.ArcOfCircle(Part.Circle(V(6, 71, 0), V(0, 0, 1), 2), math.radians(45), math.radians(90)),  # 5
    Part.LineSegment(V(7.4, 72.4, 0), V(14.2, 65.6, 0)),  # 6
    Part.ArcOfCircle(Part.Circle(V(15.7, 67, 0), V(0, 0, 1), 2), math.radians(-135), math.radians(-90)),  # 7
    Part.LineSegment(V(15.7, 65, 0), V(65, 65, 0)),  # 8
    Part.LineSegment(V(65, 65, 0), V(65, 97, 0)),  # 9
    Part.LineSegment(V(65, 97, 0), V(-65, 97, 0)),  # 10
    Part.LineSegment(V(-65, 97, 0), V(-65, 65, 0)),  # 11
], False)
sketch11.addConstraint([
    Sketcher.Constraint("Tangent", 0, 2, 1, 1),
    Sketcher.Constraint("Tangent", 1, 2, 2, 1),
    Sketcher.Constraint("Tangent", 2, 2, 3, 2),
    Sketcher.Constraint("Tangent", 3, 1, 4, 1),
    Sketcher.Constraint("Tangent", 4, 2, 5, 2),
    Sketcher.Constraint("Tangent", 5, 1, 6, 1),
    Sketcher.Constraint("Tangent", 6, 2, 7, 1),
    Sketcher.Constraint("Tangent", 7, 2, 8, 1),
    Sketcher.Constraint("Coincident", 8, 2, 9, 1),
    Sketcher.Constraint("Coincident", 9, 2, 10, 1),
    Sketcher.Constraint("Coincident", 10, 2, 11, 1),
    Sketcher.Constraint("Coincident", 11, 2, 0, 1),
    Sketcher.Constraint("Horizontal", 0),
    Sketcher.Constraint("Horizontal", 4),
    Sketcher.Constraint("Horizontal", 8),
    Sketcher.Constraint("Vertical", 9),
    Sketcher.Constraint("Horizontal", 10),
    Sketcher.Constraint("Vertical", 11),
    Sketcher.Constraint("Equal", 3, 5),
    Sketcher.Constraint("Equal", 1, 7),
    Sketcher.Constraint("Symmetric", 1, 3, 7, 3, -2),
    Sketcher.Constraint("Perpendicular", 2, 6),
    Sketcher.Constraint("Horizontal", 2, 2, 5, 1),
    Sketcher.Constraint("Equal", 0, 8),
    Sketcher.Constraint("Radius", 1, Q("2 mm")),
    Sketcher.Constraint("DistanceX", 4, 1, 4, 2, Q("12 mm")),
    Sketcher.Constraint("DistanceX", 10, 2, 10, 1, Q("130 mm")),
    Sketcher.Constraint("DistanceY", 9, 1, 9, 2, Q("32 mm")),
    Sketcher.Constraint("DistanceY", -1, 1, 1, 3, Q("67 mm")),
    Sketcher.Constraint("DistanceY", -1, 1, 3, 1, Q("73 mm")),
    Sketcher.Constraint("Radius", 3, Q("2.000004 mm")),
])
sketch11.setExpression("Constraints[24]", "Params.sketch11_radius")
sketch11.setExpression("Constraints[25]", "Params.sketch11_width")
sketch11.setExpression("Constraints[26]", "Params.sketch11_width2")
sketch11.setExpression("Constraints[27]", "Params.sketch11_height")
pocket10 = body.newObject("PartDesign::Pocket", "Pocket009")
pocket10.Profile = sketch11
pocket10.Type = "ThroughAll"
pocket10.Reversed = True

# Sketch on XY plane
sketch12 = body.newObject("Sketcher::SketchObject", "Sketch011")
sketch12.AttachmentSupport = (doc.getObject("XY_Plane"), [""])
sketch12.MapMode = "FlatFace"
sketch12.AttachmentOffset = App.Placement(V(0, 0, 17), App.Rotation())
add_polygon(sketch12, [(-80, 98), (-80, 32), (-36, 32), (-36, 98)])  # lines 0-3
add_polygon(sketch12, [(36, 98), (36, 32), (80, 32), (80, 98)])  # lines 4-7
sketch12.addConstraint([
    Sketcher.Constraint("Vertical", 0),
    Sketcher.Constraint("Horizontal", 1),
    Sketcher.Constraint("Vertical", 2),
    Sketcher.Constraint("Horizontal", 3),
    Sketcher.Constraint("Vertical", 4),
    Sketcher.Constraint("Horizontal", 5),
    Sketcher.Constraint("Vertical", 6),
    Sketcher.Constraint("Horizontal", 7),
    Sketcher.Constraint("Symmetric", 1, 2, 4, 2, -2),
    Sketcher.Constraint("Symmetric", 3, 2, 6, 2, -2),
    Sketcher.Constraint("DistanceX", 1, 1, 1, 2, Q("44 mm")),
    Sketcher.Constraint("DistanceY", 0, 2, 0, 1, Q("65 mm")),
    Sketcher.Constraint("DistanceX", 0, 2, -1, 1, Q("80 mm")),
    Sketcher.Constraint("DistanceY", -1, 1, 0, 2, Q("32.5 mm")),
])
sketch12.setExpression("Constraints[18]", "Params.sketch12_width")
sketch12.setExpression("Constraints[19]", "Params.sketch12_height")
pocket11 = body.newObject("PartDesign::Pocket", "Pocket010")
pocket11.Profile = sketch12
pocket11.setExpression("Length", "Params.pocket11_length")

doc.recompute()
